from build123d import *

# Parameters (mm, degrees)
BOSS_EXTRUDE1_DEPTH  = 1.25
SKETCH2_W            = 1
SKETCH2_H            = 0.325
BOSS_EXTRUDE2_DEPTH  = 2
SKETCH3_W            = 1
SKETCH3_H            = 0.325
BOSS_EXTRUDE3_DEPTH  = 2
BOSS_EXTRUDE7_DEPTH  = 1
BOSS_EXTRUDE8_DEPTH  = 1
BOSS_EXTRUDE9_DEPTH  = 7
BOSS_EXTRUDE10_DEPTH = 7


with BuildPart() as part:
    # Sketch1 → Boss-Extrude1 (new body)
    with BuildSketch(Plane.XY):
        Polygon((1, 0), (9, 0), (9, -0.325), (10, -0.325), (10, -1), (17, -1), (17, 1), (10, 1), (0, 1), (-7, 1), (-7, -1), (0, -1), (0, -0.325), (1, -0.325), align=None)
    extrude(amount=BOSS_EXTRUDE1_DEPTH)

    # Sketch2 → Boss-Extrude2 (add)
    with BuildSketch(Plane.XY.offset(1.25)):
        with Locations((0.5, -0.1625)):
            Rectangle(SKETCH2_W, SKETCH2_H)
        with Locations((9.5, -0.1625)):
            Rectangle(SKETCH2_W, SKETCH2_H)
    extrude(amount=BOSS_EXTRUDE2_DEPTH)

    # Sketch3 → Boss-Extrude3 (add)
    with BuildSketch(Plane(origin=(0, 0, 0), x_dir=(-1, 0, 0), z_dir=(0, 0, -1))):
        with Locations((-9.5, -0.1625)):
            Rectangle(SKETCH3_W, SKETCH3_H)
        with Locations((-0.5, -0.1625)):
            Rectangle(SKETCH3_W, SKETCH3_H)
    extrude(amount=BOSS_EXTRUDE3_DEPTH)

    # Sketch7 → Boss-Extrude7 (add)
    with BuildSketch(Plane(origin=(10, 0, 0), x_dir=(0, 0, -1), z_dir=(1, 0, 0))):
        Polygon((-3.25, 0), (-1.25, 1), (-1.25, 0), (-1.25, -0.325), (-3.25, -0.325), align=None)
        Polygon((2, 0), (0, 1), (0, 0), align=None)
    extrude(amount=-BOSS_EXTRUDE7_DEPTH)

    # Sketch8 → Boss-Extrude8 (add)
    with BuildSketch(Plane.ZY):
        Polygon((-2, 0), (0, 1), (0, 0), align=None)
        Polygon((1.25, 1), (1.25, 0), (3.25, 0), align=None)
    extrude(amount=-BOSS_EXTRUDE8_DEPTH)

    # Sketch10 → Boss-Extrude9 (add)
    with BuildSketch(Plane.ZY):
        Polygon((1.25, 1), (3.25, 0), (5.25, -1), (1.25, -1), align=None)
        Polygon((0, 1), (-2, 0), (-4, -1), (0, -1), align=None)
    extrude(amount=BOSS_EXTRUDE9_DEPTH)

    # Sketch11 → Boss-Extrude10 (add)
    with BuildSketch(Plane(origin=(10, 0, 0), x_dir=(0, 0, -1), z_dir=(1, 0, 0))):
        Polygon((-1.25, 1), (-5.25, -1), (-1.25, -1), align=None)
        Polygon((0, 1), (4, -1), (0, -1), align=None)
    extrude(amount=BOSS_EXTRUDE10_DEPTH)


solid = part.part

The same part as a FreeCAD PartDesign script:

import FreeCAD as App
import Part
import Sketcher
from FreeCAD import Vector


def add_polygon(sketch, points):
    """Adds a closed chain of lines whose ends are joined by coincident constraints."""
    first, n = sketch.GeometryCount, len(points)
    for a, b in zip(points, points[1:] + points[:1]):
        sketch.addGeometry(Part.LineSegment(App.Vector(*a, 0), App.Vector(*b, 0)), False)
    for i in range(n):
        sketch.addConstraint(Sketcher.Constraint("Coincident", first + i, 2, first + (i + 1) % n, 1))

doc = App.newDocument("Part")
body = doc.addObject("PartDesign::Body", "Body")

sketch1 = doc.addObject("Sketcher::SketchObject", "Sketch")
body.addObject(sketch1)
sketch1.AttachmentSupport = (doc.XY_Plane, [""])
sketch1.MapMode = "FlatFace"
add_polygon(sketch1, [(1, 0), (9, 0), (9, -0.325), (10, -0.325), (10, -1), (17, -1), (17, 1), (-7, 1), (-7, -1), (0, -1), (0, -0.325), (1, -0.325)])
sketch1.addConstraint([
    Sketcher.Constraint("Horizontal", 0),
    Sketcher.Constraint("Vertical", 1),
    Sketcher.Constraint("Horizontal", 2),
    Sketcher.Constraint("Vertical", 3),
    Sketcher.Constraint("Horizontal", 4),
    Sketcher.Constraint("Vertical", 5),
    Sketcher.Constraint("Horizontal", 6),
    Sketcher.Constraint("Vertical", 7),
    Sketcher.Constraint("Horizontal", 8),
    Sketcher.Constraint("Vertical", 9),
    Sketcher.Constraint("Horizontal", 10),
    Sketcher.Constraint("Vertical", 11),
    Sketcher.Constraint("PointOnObject", 0, 2, -1),
    Sketcher.Constraint("PointOnObject", 8, 2, -2),
    Sketcher.Constraint("Horizontal", 4, 2, 7, 2),
    Sketcher.Constraint("Horizontal", 2, 2, 9, 2),
    Sketcher.Constraint("Equal", 4, 8),
    Sketcher.Constraint("Equal", 2, 10),
    Sketcher.Constraint("DistanceX", 0, 1, 0, 2, 8.0),
    Sketcher.Constraint("DistanceX", 2, 1, 2, 2, 1.0),
    Sketcher.Constraint("DistanceX", 4, 1, 4, 2, 7.0),
    Sketcher.Constraint("DistanceY", 5, 1, 5, 2, 2.0),
    Sketcher.Constraint("DistanceY", 3, 2, -1, 1, 1.0),
    Sketcher.Constraint("DistanceY", 1, 2, 1, 1, 0.325),
])
pad1 = doc.addObject("PartDesign::Pad", "Pad")
body.addObject(pad1)
pad1.Profile = sketch1
pad1.Length = 1.25

sketch2 = doc.addObject("Sketcher::SketchObject", "Sketch001")
body.addObject(sketch2)
sketch2.AttachmentSupport = (doc.XY_Plane, [""])
sketch2.MapMode = "FlatFace"
sketch2.AttachmentOffset = App.Placement(Vector(0, 0, 1.25), App.Rotation())
add_polygon(sketch2, [(0, 0), (0, -0.325), (1, -0.325), (1, 0)])
add_polygon(sketch2, [(9, 0), (9, -0.325), (10, -0.325), (10, 0)])
sketch2.addConstraint([
    Sketcher.Constraint("Vertical", 0),
    Sketcher.Constraint("Horizontal", 1),
    Sketcher.Constraint("Vertical", 2),
    Sketcher.Constraint("Horizontal", 3),
    Sketcher.Constraint("Vertical", 4),
    Sketcher.Constraint("Horizontal", 5),
    Sketcher.Constraint("Vertical", 6),
    Sketcher.Constraint("Horizontal", 7),
    Sketcher.Constraint("Coincident", 3, 2, -1, 1),
    Sketcher.Constraint("PointOnObject", 6, 2, -1),
    Sketcher.Constraint("Horizontal", 1, 2, 4, 2),
    Sketcher.Constraint("Equal", 3, 5),
    Sketcher.Constraint("DistanceX", 1, 1, 1, 2, 1.0),
    Sketcher.Constraint("DistanceX", -1, 1, 4, 2, 9.0),
    Sketcher.Constraint("DistanceY", 0, 2, 0, 1, 0.325),
])
pad2 = doc.addObject("PartDesign::Pad", "Pad001")
body.addObject(pad2)
pad2.Profile = sketch2
pad2.Length = 2

sketch3 = doc.addObject("Sketcher::SketchObject", "Sketch002")
body.addObject(sketch3)
sketch3.AttachmentSupport = (doc.XY_Plane, [""])
sketch3.MapMode = "FlatFace"
add_polygon(sketch3, [(10, 0), (10, -0.325), (9, -0.325), (9, 0)])
add_polygon(sketch3, [(1, 0), (1, -0.325), (0, -0.325), (0, 0)])
sketch3.addConstraint([
    Sketcher.Constraint("Vertical", 0),
    Sketcher.Constraint("Horizontal", 1),
    Sketcher.Constraint("Vertical", 2),
    Sketcher.Constraint("Horizontal", 3),
    Sketcher.Constraint("Vertical", 4),
    Sketcher.Constraint("Horizontal", 5),
    Sketcher.Constraint("Vertical", 6),
    Sketcher.Constraint("Horizontal", 7),
    Sketcher.Constraint("Coincident", 6, 2, -1, 1),
    Sketcher.Constraint("PointOnObject", 2, 2, -1),
    Sketcher.Constraint("Horizontal", 1, 2, 4, 2),
    Sketcher.Constraint("Equal", 3, 5),
    Sketcher.Constraint("DistanceX", 1, 2, 1, 1, 1.0),
    Sketcher.Constraint("DistanceX", -1, 1, 0, 2, 10.0),
    Sketcher.Constraint("DistanceY", 0, 2, 0, 1, 0.325),
])
pad3 = doc.addObject("PartDesign::Pad", "Pad002")
body.addObject(pad3)
pad3.Profile = sketch3
pad3.Length = 2
pad3.Reversed = True

sketch4 = doc.addObject("Sketcher::SketchObject", "Sketch003")
body.addObject(sketch4)
sketch4.AttachmentSupport = (doc.YZ_Plane, [""])
sketch4.MapMode = "FlatFace"
sketch4.AttachmentOffset = App.Placement(Vector(0, 0, 10), App.Rotation())
add_polygon(sketch4, [(1, 1.25), (0, 3.25), (-0.325, 3.25), (-0.325, 1.25)])
add_polygon(sketch4, [(0, -2), (1, 0), (0, 0)])
sketch4.addConstraint([
    Sketcher.Constraint("Horizontal", 1),
    Sketcher.Constraint("Vertical", 2),
    Sketcher.Constraint("Horizontal", 3),
    Sketcher.Constraint("Horizontal", 5),
    Sketcher.Constraint("Vertical", 6),
    Sketcher.Constraint("Coincident", 5, 2, -1, 1),
    Sketcher.Constraint("PointOnObject", 0, 2, -2),
    Sketcher.Constraint("Vertical", 3, 2, 4, 2),
    Sketcher.Constraint("Equal", 2, 6),
    Sketcher.Constraint("DistanceX", 5, 2, 5, 1, 1.0),
    Sketcher.Constraint("DistanceY", 2, 2, 2, 1, 2.0),
    Sketcher.Constraint("DistanceX", 1, 2, 1, 1, 0.325),
    Sketcher.Constraint("DistanceY", -1, 1, 0, 2, 3.25),
])
pad4 = doc.addObject("PartDesign::Pad", "Pad003")
body.addObject(pad4)
pad4.Profile = sketch4
pad4.Length = 1
pad4.Reversed = True

sketch5 = doc.addObject("Sketcher::SketchObject", "Sketch004")
body.addObject(sketch5)
sketch5.AttachmentSupport = (doc.YZ_Plane, [""])
sketch5.MapMode = "FlatFace"
add_polygon(sketch5, [(1, 0), (0, -2), (0, 0)])
add_polygon(sketch5, [(1, 1.25), (0, 1.25), (0, 3.25)])
sketch5.addConstraint([
    Sketcher.Constraint("Vertical", 1),
    Sketcher.Constraint("Horizontal", 2),
    Sketcher.Constraint("Horizontal", 3),
    Sketcher.Constraint("Vertical", 4),
    Sketcher.Constraint("Coincident", 1, 2, -1, 1),
    Sketcher.Constraint("PointOnObject", 3, 2, -2),
    Sketcher.Constraint("Vertical", 2, 2, 5, 2),
    Sketcher.Constraint("Equal", 1, 4),
    Sketcher.Constraint("DistanceX", 2, 1, 2, 2, 1.0),
    Sketcher.Constraint("DistanceY", 1, 1, 1, 2, 2.0),
    Sketcher.Constraint("DistanceY", -1, 1, 3, 2, 1.25),
])
pad5 = doc.addObject("PartDesign::Pad", "Pad004")
body.addObject(pad5)
pad5.Profile = sketch5
pad5.Length = 1

sketch6 = doc.addObject("Sketcher::SketchObject", "Sketch005")
body.addObject(sketch6)
sketch6.AttachmentSupport = (doc.YZ_Plane, [""])
sketch6.MapMode = "FlatFace"
add_polygon(sketch6, [(-1, 5.25), (1, 1.25), (-1, 1.25)])
add_polygon(sketch6, [(1, 0), (-1, -4), (-1, 0)])
sketch6.addConstraint([
    Sketcher.Constraint("Horizontal", 1),
    Sketcher.Constraint("Vertical", 2),
    Sketcher.Constraint("Vertical", 4),
    Sketcher.Constraint("Horizontal", 5),
    Sketcher.Constraint("Symmetric", 4, 2, 5, 2, -1, 1),
    Sketcher.Constraint("Vertical", 2, 2, 3, 2),
    Sketcher.Constraint("Vertical", 0, 2, 5, 2),
    Sketcher.Constraint("Equal", 2, 4),
    Sketcher.Constraint("DistanceX", 1, 2, 1, 1, 2.0),
    Sketcher.Constraint("DistanceY", 2, 1, 2, 2, 4.0),
    Sketcher.Constraint("DistanceY", -1, 1, 0, 2, 1.25),
])
pad6 = doc.addObject("PartDesign::Pad", "Pad005")
body.addObject(pad6)
pad6.Profile = sketch6
pad6.Length = 7
pad6.Reversed = True

sketch7 = doc.addObject("Sketcher::SketchObject", "Sketch006")
body.addObject(sketch7)
sketch7.AttachmentSupport = (doc.YZ_Plane, [""])
sketch7.MapMode = "FlatFace"
sketch7.AttachmentOffset = App.Placement(Vector(0, 0, 10), App.Rotation())
add_polygon(sketch7, [(1, 1.25), (-1, 5.25), (-1, 1.25)])
add_polygon(sketch7, [(-1, -4), (1, 0), (-1, 0)])
sketch7.addConstraint([
    Sketcher.Constraint("Vertical", 1),
    Sketcher.Constraint("Horizontal", 2),
    Sketcher.Constraint("Horizontal", 4),
    Sketcher.Constraint("Vertical", 5),
    Sketcher.Constraint("Symmetric", 3, 2, 4, 2, -1, 1),
    Sketcher.Constraint("Vertical", 2, 2, 3, 2),
    Sketcher.Constraint("Vertical", 1, 2, 4, 2),
    Sketcher.Constraint("Equal", 1, 5),
    Sketcher.Constraint("DistanceX", 2, 1, 2, 2, 2.0),
    Sketcher.Constraint("DistanceY", 1, 2, 1, 1, 4.0),
    Sketcher.Constraint("DistanceY", -1, 1, 0, 2, 5.25),
])
pad7 = doc.addObject("PartDesign::Pad", "Pad006")
body.addObject(pad7)
pad7.Profile = sketch7
pad7.Length = 7

doc.recompute()
